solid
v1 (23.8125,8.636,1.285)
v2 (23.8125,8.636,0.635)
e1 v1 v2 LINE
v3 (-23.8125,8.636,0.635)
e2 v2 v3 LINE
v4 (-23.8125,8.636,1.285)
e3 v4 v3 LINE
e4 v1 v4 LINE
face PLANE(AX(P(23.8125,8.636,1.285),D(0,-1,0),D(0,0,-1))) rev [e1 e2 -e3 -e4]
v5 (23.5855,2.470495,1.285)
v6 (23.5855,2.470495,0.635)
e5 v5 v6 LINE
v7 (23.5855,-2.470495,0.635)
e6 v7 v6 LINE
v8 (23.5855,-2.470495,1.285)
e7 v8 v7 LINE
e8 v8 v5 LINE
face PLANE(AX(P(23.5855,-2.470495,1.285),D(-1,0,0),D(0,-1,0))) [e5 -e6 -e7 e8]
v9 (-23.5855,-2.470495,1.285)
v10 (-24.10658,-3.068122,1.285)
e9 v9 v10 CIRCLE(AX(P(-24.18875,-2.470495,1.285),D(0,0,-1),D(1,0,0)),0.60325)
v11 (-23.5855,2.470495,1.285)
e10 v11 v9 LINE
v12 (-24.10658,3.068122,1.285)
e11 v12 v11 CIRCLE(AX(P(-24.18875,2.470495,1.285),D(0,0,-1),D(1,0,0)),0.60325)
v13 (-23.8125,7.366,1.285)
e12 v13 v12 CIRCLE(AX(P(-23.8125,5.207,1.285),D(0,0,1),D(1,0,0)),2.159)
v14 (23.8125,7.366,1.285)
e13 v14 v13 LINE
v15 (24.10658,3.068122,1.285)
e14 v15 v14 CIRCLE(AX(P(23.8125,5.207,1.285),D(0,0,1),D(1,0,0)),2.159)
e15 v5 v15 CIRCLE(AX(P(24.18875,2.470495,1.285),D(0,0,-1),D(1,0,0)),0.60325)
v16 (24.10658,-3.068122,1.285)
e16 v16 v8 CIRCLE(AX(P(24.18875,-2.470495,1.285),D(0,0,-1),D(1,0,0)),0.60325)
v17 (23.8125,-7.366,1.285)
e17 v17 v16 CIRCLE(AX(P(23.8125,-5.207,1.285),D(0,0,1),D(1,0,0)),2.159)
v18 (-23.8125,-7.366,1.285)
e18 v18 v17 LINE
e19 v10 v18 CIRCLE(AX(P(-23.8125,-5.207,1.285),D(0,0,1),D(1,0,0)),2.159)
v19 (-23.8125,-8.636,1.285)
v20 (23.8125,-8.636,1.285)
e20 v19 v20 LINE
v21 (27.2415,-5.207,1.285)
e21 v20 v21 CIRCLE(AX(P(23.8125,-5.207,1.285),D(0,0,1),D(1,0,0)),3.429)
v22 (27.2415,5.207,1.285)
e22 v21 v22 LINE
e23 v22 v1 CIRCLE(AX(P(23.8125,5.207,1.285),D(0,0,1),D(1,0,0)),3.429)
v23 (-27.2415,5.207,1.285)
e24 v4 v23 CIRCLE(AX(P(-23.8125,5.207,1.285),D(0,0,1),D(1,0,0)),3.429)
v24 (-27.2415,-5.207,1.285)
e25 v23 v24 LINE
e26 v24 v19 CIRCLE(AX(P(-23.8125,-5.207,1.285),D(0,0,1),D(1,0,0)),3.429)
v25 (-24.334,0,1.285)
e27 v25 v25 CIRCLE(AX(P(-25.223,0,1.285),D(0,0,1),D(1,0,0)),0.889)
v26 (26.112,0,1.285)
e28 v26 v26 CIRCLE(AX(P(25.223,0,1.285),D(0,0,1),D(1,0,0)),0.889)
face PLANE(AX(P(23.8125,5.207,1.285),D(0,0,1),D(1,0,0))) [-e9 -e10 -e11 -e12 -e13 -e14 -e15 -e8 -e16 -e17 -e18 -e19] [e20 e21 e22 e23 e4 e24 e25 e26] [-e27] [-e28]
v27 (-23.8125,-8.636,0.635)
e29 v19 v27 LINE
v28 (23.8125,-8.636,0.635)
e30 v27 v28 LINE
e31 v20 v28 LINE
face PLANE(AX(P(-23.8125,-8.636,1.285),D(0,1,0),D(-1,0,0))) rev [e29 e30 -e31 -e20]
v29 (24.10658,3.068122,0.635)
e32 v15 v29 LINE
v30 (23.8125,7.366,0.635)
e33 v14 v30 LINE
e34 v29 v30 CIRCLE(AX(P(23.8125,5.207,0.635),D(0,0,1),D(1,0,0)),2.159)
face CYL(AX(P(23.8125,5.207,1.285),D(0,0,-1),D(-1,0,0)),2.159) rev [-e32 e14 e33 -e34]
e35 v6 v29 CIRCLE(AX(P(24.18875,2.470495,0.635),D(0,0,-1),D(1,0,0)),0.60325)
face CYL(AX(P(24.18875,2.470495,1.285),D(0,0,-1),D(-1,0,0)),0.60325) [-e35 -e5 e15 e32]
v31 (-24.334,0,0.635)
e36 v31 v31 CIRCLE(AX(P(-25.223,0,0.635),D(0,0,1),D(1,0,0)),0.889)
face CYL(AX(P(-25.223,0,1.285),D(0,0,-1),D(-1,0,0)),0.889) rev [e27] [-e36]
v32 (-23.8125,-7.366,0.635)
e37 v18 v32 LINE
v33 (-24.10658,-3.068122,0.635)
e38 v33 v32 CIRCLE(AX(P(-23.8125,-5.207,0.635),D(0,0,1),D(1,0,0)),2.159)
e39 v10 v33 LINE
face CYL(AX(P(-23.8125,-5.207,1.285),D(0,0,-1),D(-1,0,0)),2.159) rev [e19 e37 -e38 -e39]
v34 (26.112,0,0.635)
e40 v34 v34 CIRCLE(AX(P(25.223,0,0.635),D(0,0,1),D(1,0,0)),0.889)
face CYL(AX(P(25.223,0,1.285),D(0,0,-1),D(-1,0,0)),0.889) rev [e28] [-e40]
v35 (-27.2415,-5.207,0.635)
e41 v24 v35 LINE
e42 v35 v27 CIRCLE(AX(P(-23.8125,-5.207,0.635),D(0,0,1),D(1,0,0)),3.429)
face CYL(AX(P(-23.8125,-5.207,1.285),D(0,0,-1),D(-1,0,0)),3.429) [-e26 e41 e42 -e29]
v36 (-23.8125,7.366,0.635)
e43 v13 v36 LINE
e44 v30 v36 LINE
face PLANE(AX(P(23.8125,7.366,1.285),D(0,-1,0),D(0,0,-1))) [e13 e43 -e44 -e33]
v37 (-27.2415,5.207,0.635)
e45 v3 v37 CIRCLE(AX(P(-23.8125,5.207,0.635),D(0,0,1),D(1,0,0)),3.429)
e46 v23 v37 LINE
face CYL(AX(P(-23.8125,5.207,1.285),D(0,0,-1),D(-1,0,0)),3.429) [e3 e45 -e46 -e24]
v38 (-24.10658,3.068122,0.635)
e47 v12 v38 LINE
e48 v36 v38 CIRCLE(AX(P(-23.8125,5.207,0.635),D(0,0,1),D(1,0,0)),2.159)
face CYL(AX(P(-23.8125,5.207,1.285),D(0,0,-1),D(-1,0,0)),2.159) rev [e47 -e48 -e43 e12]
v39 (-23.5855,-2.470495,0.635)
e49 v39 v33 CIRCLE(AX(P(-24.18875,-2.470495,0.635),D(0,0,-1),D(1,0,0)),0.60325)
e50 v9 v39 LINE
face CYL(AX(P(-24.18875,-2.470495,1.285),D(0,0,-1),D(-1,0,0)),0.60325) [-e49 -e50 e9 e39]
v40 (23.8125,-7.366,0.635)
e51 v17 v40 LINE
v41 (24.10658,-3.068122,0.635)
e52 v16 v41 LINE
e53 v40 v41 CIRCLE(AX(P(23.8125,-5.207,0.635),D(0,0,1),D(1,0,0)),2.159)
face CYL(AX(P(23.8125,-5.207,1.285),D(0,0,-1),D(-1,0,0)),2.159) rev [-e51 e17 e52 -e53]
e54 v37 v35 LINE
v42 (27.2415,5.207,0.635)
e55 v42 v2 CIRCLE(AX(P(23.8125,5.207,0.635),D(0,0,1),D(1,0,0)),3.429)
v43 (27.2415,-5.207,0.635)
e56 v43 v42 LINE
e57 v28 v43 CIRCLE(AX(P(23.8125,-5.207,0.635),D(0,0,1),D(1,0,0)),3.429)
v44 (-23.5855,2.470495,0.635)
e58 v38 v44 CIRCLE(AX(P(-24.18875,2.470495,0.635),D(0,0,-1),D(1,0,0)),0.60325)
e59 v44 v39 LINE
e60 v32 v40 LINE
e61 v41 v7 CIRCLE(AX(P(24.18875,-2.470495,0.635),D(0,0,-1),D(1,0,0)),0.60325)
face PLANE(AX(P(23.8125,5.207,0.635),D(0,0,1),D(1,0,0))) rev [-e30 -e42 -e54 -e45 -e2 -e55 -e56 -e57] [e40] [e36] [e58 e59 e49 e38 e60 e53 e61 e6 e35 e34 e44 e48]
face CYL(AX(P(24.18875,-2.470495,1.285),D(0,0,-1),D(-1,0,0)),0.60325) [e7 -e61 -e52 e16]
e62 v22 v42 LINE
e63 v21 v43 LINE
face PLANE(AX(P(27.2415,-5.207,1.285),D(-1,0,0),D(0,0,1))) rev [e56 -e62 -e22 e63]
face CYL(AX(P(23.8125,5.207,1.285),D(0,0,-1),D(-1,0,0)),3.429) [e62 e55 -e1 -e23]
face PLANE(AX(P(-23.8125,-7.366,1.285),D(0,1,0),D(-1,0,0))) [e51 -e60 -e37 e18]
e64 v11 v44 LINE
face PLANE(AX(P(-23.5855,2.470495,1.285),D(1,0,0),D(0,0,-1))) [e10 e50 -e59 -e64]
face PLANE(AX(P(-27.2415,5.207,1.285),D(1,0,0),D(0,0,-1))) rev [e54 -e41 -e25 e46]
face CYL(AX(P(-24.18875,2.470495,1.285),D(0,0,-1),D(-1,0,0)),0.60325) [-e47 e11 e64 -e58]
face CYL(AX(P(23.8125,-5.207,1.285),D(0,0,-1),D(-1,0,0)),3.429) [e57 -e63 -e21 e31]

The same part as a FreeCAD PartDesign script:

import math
import FreeCAD as App
import Part
import Sketcher
from FreeCAD import Vector
Q = App.Units.Quantity

doc = App.newDocument("Part")
body = doc.addObject("PartDesign::Body", "Body")

# Sketch on XY plane
sketch1 = body.newObject("Sketcher::SketchObject", "Sketch")
sketch1.AttachmentSupport = (doc.getObject("XY_Plane"), [""])
sketch1.MapMode = "FlatFace"
sketch1.AttachmentOffset = App.Placement(Vector(0, 0, 0.025 * 25.4), App.Rotation())
sketch1.addGeometry(Part.LineSegment(Vector(23.8, 8.6, 0), Vector(-23.8, 8.6, 0)), False)
sketch1.addGeometry(Part.ArcOfCircle(Part.Circle(Vector(-23.8, 5.2, 0), Vector(0, 0, 1), 3.4), math.radians(90), math.radians(180)), False)
sketch1.addGeometry(Part.LineSegment(Vector(-27.2, 5.2, 0), Vector(-27.2, -5.2, 0)), False)
sketch1.addGeometry(Part.ArcOfCircle(Part.Circle(Vector(-23.8, -5.2, 0), Vector(0, 0, 1), 3.4), math.radians(180), math.radians(270)), False)
sketch1.addGeometry(Part.LineSegment(Vector(-23.8, -8.6, 0), Vector(23.8, -8.6, 0)), False)
sketch1.addGeometry(Part.ArcOfCircle(Part.Circle(Vector(23.8, -5.2, 0), Vector(0, 0, 1), 3.4), math.radians(-90), math.radians(0)), False)
sketch1.addGeometry(Part.LineSegment(Vector(27.2, -5.2, 0), Vector(27.2, 5.2, 0)), False)
sketch1.addGeometry(Part.ArcOfCircle(Part.Circle(Vector(23.8, 5.2, 0), Vector(0, 0, 1), 3.4), math.radians(0), math.radians(90)), False)
sketch1.addGeometry(Part.Circle(Vector(-25.2, 0, 0), Vector(0, 0, 1), 0.9), False)
sketch1.addGeometry(Part.LineSegment(Vector(23.6, 2.5, 0), Vector(23.6, -2.5, 0)), False)
sketch1.addGeometry(Part.ArcOfCircle(Part.Circle(Vector(24.2, -2.5, 0), Vector(0, 0, 1), 0.6), math.radians(180), math.radians(262)), False)
sketch1.addGeometry(Part.ArcOfCircle(Part.Circle(Vector(23.8, -5.2, 0), Vector(0, 0, 1), 2.2), math.radians(-90), math.radians(82)), False)
sketch1.addGeometry(Part.LineSegment(Vector(23.8, -7.4, 0), Vector(-23.8, -7.4, 0)), False)
sketch1.addGeometry(Part.ArcOfCircle(Part.Circle(Vector(-23.8, -5.2, 0), Vector(0, 0, 1), 2.2), math.radians(98), math.radians(270)), False)
sketch1.addGeometry(Part.ArcOfCircle(Part.Circle(Vector(-24.2, -2.5, 0), Vector(0, 0, 1), 0.6), math.radians(-82), math.radians(0)), False)
sketch1.addGeometry(Part.LineSegment(Vector(-23.6, -2.5, 0), Vector(-23.6, 2.5, 0)), False)
sketch1.addGeometry(Part.ArcOfCircle(Part.Circle(Vector(-24.2, 2.5, 0), Vector(0, 0, 1), 0.6), math.radians(0), math.radians(82)), False)
sketch1.addGeometry(Part.ArcOfCircle(Part.Circle(Vector(-23.8, 5.2, 0), Vector(0, 0, 1), 2.2), math.radians(90), math.radians(262)), False)
sketch1.addGeometry(Part.LineSegment(Vector(-23.8, 7.4, 0), Vector(23.8, 7.4, 0)), False)
sketch1.addGeometry(Part.ArcOfCircle(Part.Circle(Vector(23.8, 5.2, 0), Vector(0, 0, 1), 2.2), math.radians(-82), math.radians(90)), False)
sketch1.addGeometry(Part.ArcOfCircle(Part.Circle(Vector(24.2, 2.5, 0), Vector(0, 0, 1), 0.6), math.radians(98), math.radians(180)), False)
sketch1.addGeometry(Part.Circle(Vector(25.2, 0, 0), Vector(0, 0, 1), 0.9), False)
sketch1.addConstraint(Sketcher.Constraint("Tangent", 0, 2, 1, 1))
sketch1.addConstraint(Sketcher.Constraint("Tangent", 1, 2, 2, 1))
sketch1.addConstraint(Sketcher.Constraint("Tangent", 2, 2, 3, 1))
sketch1.addConstraint(Sketcher.Constraint("Tangent", 3, 2, 4, 1))
sketch1.addConstraint(Sketcher.Constraint("Tangent", 4, 2, 5, 1))
sketch1.addConstraint(Sketcher.Constraint("Tangent", 5, 2, 6, 1))
sketch1.addConstraint(Sketcher.Constraint("Tangent", 6, 2, 7, 1))
sketch1.addConstraint(Sketcher.Constraint("Tangent", 7, 2, 0, 1))
sketch1.addConstraint(Sketcher.Constraint("Tangent", 9, 2, 10, 1))
sketch1.addConstraint(Sketcher.Constraint("Tangent", 10, 2, 11, 2))
sketch1.addConstraint(Sketcher.Constraint("Tangent", 11, 1, 12, 1))
sketch1.addConstraint(Sketcher.Constraint("Tangent", 12, 2, 13, 2))
sketch1.addConstraint(Sketcher.Constraint("Tangent", 13, 1, 14, 1))
sketch1.addConstraint(Sketcher.Constraint("Tangent", 14, 2, 15, 1))
sketch1.addConstraint(Sketcher.Constraint("Tangent", 15, 2, 16, 1))
sketch1.addConstraint(Sketcher.Constraint("Tangent", 16, 2, 17, 2))
sketch1.addConstraint(Sketcher.Constraint("Tangent", 17, 1, 18, 1))
sketch1.addConstraint(Sketcher.Constraint("Tangent", 18, 2, 19, 2))
sketch1.addConstraint(Sketcher.Constraint("Tangent", 19, 1, 20, 1))
sketch1.addConstraint(Sketcher.Constraint("Tangent", 20, 2, 9, 1))
sketch1.addConstraint(Sketcher.Constraint("Horizontal", 0))
sketch1.addConstraint(Sketcher.Constraint("Vertical", 2))
sketch1.addConstraint(Sketcher.Constraint("Horizontal", 4))
sketch1.addConstraint(Sketcher.Constraint("Vertical", 6))
sketch1.addConstraint(Sketcher.Constraint("Vertical", 9))
sketch1.addConstraint(Sketcher.Constraint("Horizontal", 12))
sketch1.addConstraint(Sketcher.Constraint("Vertical", 15))
sketch1.addConstraint(Sketcher.Constraint("Horizontal", 18))
sketch1.addConstraint(Sketcher.Constraint("Coincident", 11, 3, 5, 3))
sketch1.addConstraint(Sketcher.Constraint("Coincident", 13, 3, 3, 3))
sketch1.addConstraint(Sketcher.Constraint("Coincident", 17, 3, 1, 3))
sketch1.addConstraint(Sketcher.Constraint("Coincident", 19, 3, 7, 3))
sketch1.addConstraint(Sketcher.Constraint("Equal", 1, 3))
sketch1.addConstraint(Sketcher.Constraint("Equal", 3, 5))
sketch1.addConstraint(Sketcher.Constraint("Equal", 5, 7))
sketch1.addConstraint(Sketcher.Constraint("Equal", 10, 14))
sketch1.addConstraint(Sketcher.Constraint("Equal", 14, 16))
sketch1.addConstraint(Sketcher.Constraint("Equal", 13, 17))
sketch1.addConstraint(Sketcher.Constraint("Equal", 16, 20))
sketch1.addConstraint(Sketcher.Constraint("Equal", 8, 21))
sketch1.addConstraint(Sketcher.Constraint("Symmetric", 1, 3, 5, 3, -1, 1))
sketch1.addConstraint(Sketcher.Constraint("Symmetric", 8, 3, 21, 3, -1, 1))
sketch1.addConstraint(Sketcher.Constraint("PointOnObject", 8, 3, -1))
sketch1.addConstraint(Sketcher.Constraint("Horizontal", 10, 3, 14, 3))
sketch1.addConstraint(Sketcher.Constraint("Diameter", 8, Q("0.07 in")))
sketch1.addConstraint(Sketcher.Constraint("Radius", 1, Q("0.135 in")))
sketch1.addConstraint(Sketcher.Constraint("Radius", 11, Q("0.085 in")))
sketch1.addConstraint(Sketcher.Constraint("DistanceY", 2, 2, 2, 1, Q("0.41 in")))
sketch1.addConstraint(Sketcher.Constraint("DistanceX", 0, 2, 0, 1, Q("1.875 in")))
sketch1.addConstraint(Sketcher.Constraint("Radius", 10, 0.60325))
sketch1.addConstraint(Sketcher.Constraint("DistanceY", 9, 2, 9, 1, 4.940989))
sketch1.addConstraint(Sketcher.Constraint("DistanceX", 8, 3, -1, 1, 25.223))
pad1 = body.newObject("PartDesign::Pad", "Pad")
pad1.Profile = sketch1
pad1.Length = 0.65

doc.recompute()
